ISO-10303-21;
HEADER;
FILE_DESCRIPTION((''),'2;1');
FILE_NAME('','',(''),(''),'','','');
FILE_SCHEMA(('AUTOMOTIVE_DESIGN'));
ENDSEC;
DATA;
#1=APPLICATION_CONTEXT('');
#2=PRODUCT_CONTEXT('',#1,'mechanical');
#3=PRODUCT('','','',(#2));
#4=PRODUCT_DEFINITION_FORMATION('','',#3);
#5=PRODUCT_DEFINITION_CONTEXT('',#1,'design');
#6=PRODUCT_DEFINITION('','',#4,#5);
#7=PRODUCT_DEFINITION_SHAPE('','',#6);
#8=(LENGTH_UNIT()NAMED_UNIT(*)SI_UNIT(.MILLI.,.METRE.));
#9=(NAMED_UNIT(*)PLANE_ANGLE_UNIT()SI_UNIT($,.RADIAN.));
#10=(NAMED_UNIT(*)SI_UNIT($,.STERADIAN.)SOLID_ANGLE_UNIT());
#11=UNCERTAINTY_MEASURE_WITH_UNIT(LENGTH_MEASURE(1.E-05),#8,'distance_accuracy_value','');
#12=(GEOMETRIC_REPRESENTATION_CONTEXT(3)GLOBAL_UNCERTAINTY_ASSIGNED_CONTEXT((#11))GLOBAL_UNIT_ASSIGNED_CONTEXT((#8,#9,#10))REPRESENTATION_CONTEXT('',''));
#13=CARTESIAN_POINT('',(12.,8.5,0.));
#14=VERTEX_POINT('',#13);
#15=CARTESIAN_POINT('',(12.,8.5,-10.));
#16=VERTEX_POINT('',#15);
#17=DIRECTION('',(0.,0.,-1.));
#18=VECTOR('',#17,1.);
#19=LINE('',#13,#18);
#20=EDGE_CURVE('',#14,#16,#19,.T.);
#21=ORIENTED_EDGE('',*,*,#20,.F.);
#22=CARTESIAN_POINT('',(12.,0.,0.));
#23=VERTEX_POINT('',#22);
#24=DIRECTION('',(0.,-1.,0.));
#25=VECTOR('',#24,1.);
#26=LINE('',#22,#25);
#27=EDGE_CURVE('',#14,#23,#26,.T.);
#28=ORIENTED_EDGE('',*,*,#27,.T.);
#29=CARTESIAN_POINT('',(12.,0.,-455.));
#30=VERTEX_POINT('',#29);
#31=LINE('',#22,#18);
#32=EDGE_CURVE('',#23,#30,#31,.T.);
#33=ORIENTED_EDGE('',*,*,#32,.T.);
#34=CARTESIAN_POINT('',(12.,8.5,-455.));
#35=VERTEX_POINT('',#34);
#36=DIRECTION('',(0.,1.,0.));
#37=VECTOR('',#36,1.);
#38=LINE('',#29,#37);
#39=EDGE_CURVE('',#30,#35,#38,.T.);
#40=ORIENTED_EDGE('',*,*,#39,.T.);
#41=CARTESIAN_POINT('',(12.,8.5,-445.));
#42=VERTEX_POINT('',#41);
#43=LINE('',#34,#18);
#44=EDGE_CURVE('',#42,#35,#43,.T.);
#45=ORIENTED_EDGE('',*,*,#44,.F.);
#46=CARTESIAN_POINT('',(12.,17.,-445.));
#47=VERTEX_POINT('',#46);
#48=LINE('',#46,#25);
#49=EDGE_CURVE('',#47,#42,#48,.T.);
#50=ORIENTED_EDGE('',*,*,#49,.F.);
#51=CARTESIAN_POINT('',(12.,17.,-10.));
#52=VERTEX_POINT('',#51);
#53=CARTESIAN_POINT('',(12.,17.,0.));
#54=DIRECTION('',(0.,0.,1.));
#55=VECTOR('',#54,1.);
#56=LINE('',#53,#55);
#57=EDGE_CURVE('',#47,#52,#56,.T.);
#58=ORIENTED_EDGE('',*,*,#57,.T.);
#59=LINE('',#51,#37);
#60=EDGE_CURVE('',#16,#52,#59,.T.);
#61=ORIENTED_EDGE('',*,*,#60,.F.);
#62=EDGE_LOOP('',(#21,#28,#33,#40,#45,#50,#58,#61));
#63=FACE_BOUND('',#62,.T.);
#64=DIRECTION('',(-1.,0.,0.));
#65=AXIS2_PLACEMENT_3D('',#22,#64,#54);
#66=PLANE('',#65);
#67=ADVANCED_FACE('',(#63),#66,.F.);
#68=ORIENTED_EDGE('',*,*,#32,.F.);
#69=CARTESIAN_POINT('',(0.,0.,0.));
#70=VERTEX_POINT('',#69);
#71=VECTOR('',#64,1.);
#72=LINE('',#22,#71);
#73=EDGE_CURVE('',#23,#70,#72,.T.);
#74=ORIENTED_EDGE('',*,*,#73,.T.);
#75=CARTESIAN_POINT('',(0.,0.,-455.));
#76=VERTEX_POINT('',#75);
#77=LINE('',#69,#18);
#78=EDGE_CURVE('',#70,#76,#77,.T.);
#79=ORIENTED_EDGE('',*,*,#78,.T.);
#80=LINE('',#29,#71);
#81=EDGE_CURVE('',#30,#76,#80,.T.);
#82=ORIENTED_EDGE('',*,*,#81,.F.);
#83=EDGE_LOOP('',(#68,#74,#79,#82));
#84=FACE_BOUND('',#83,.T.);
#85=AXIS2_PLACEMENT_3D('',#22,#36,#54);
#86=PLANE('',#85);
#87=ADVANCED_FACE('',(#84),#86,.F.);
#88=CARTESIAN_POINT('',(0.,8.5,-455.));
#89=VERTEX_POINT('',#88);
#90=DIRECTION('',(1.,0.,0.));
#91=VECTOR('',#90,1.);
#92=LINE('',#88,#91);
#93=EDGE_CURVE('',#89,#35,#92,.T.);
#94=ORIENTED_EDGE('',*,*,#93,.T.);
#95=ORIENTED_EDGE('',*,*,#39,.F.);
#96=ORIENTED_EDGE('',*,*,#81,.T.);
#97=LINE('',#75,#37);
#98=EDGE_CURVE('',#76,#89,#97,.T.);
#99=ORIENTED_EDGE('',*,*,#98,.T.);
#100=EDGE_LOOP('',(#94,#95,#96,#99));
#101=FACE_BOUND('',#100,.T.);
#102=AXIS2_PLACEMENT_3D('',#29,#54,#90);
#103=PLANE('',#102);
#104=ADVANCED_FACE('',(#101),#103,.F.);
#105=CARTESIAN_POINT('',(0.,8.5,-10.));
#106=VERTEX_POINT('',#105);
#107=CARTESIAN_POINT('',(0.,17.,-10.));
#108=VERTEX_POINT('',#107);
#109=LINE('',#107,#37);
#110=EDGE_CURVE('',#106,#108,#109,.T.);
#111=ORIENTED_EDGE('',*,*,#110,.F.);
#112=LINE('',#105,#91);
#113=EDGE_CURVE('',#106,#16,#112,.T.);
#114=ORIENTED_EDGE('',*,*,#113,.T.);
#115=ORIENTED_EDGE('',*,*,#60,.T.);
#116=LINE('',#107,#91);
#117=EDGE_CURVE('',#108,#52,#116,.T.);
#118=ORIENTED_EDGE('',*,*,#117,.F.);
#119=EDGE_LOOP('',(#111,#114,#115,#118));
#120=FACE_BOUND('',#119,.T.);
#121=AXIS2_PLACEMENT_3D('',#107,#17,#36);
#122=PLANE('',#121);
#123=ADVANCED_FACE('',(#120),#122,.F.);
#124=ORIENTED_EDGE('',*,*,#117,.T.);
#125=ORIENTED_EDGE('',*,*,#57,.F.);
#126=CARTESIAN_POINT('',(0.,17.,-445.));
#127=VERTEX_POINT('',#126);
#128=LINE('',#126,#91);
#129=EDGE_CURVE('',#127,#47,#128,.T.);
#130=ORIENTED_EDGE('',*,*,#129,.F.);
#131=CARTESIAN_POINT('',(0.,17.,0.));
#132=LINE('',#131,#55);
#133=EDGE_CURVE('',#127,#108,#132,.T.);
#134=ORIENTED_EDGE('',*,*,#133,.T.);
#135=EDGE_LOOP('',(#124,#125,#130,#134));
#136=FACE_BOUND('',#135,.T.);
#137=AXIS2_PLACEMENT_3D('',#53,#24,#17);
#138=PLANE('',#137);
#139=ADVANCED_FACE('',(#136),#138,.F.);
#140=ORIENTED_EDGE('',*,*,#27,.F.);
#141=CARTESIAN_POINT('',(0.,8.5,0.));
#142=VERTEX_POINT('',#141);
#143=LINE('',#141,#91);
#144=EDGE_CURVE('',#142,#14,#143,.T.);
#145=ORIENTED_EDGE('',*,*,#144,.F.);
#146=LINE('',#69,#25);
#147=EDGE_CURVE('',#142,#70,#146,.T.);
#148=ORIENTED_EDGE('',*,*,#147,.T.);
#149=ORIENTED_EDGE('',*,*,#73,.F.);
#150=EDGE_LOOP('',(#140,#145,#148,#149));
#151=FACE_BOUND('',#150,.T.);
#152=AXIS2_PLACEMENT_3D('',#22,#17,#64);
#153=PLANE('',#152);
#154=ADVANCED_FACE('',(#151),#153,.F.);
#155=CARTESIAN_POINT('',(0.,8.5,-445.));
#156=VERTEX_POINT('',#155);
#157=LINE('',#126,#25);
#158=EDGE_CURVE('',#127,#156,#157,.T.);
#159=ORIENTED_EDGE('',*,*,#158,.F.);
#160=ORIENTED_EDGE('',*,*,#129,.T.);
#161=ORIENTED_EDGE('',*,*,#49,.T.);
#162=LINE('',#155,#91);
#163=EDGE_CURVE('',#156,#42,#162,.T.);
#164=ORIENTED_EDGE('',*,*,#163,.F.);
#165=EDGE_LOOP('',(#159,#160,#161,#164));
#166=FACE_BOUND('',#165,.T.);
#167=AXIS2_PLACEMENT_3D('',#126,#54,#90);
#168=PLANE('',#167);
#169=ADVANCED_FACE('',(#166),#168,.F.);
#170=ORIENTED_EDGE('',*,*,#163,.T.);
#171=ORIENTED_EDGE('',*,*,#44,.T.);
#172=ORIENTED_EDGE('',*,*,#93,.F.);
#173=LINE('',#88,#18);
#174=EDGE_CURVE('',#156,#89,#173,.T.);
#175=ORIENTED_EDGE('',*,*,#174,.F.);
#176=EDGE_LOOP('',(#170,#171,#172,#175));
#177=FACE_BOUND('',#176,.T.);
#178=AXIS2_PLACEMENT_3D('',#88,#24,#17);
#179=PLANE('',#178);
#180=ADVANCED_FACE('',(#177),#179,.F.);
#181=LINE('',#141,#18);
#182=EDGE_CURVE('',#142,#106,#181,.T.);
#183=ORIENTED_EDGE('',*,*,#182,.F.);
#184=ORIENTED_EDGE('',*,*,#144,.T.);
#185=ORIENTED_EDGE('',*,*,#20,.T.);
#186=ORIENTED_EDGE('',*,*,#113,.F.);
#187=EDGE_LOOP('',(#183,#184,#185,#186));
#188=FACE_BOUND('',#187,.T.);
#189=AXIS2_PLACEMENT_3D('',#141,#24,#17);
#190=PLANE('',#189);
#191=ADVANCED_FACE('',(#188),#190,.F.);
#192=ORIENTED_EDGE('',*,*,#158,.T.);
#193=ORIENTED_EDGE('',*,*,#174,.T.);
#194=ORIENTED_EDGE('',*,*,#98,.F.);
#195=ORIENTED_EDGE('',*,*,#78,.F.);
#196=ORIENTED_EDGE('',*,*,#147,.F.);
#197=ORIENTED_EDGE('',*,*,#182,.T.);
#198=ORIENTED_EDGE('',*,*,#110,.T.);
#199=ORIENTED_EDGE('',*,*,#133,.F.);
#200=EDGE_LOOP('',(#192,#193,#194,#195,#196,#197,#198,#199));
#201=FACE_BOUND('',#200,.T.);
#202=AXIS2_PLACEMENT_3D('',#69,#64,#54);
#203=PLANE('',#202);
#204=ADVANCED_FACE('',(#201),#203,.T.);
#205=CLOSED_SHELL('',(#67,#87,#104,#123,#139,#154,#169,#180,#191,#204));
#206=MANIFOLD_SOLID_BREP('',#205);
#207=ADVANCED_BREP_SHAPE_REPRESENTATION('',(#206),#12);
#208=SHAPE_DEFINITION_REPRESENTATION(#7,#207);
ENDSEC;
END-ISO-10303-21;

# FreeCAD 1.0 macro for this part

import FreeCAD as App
import Part
import Sketcher
from FreeCAD import Vector
Q = App.Units.Quantity

doc = App.newDocument("Part")
body = doc.addObject("PartDesign::Body", "Body")

# Sketch on YZ plane
sketch1 = doc.addObject("Sketcher::SketchObject", "Sketch")
body.addObject(sketch1)
sketch1.AttachmentSupport = (doc.YZ_Plane, [""])
sketch1.MapMode = "FlatFace"
sketch1.addGeometry(Part.LineSegment(Vector(17, 0, 0), Vector(0, 0, 0)), False)
sketch1.addGeometry(Part.LineSegment(Vector(0, 0, 0), Vector(0, -455, 0)), False)
sketch1.addGeometry(Part.LineSegment(Vector(0, -455, 0), Vector(17, -455, 0)), False)
sketch1.addGeometry(Part.LineSegment(Vector(17, -455, 0), Vector(17, 0, 0)), False)
sketch1.addConstraint(Sketcher.Constraint("Coincident", 0, 2, 1, 1))
sketch1.addConstraint(Sketcher.Constraint("Coincident", 1, 2, 2, 1))
sketch1.addConstraint(Sketcher.Constraint("Coincident", 2, 2, 3, 1))
sketch1.addConstraint(Sketcher.Constraint("Coincident", 3, 2, 0, 1))
sketch1.addConstraint(Sketcher.Constraint("Horizontal", 0))
sketch1.addConstraint(Sketcher.Constraint("Vertical", 1))
sketch1.addConstraint(Sketcher.Constraint("Horizontal", 2))
sketch1.addConstraint(Sketcher.Constraint("Vertical", 3))
sketch1.addConstraint(Sketcher.Constraint("Coincident", 0, 2, -1, 1))
sketch1.addConstraint(Sketcher.Constraint("DistanceX", 0, 2, 0, 1, Q("17 mm")))
sketch1.addConstraint(Sketcher.Constraint("DistanceY", 1, 2, 1, 1, Q("455 mm")))
pad1 = doc.addObject("PartDesign::Pad", "Pad")
body.addObject(pad1)
pad1.Profile = sketch1
pad1.Length = 12

# Sketch on YZ plane
sketch2 = doc.addObject("Sketcher::SketchObject", "Sketch001")
body.addObject(sketch2)
sketch2.AttachmentSupport = (doc.YZ_Plane, [""])
sketch2.MapMode = "FlatFace"
sketch2.AttachmentOffset = App.Placement(Vector(0, 0, 12), App.Rotation())
sketch2.addGeometry(Part.LineSegment(Vector(17, 0, 0), Vector(8, 0, 0)), False)
sketch2.addGeometry(Part.LineSegment(Vector(8, 0, 0), Vector(8, -10, 0)), False)
sketch2.addGeometry(Part.LineSegment(Vector(8, -10, 0), Vector(17, -10, 0)), False)
sketch2.addGeometry(Part.LineSegment(Vector(17, -10, 0), Vector(17, 0, 0)), False)
sketch2.addGeometry(Part.LineSegment(Vector(17, -445, 0), Vector(8, -445, 0)), False)
sketch2.addGeometry(Part.LineSegment(Vector(8, -445, 0), Vector(8, -455, 0)), False)
sketch2.addGeometry(Part.LineSegment(Vector(8, -455, 0), Vector(17, -455, 0)), False)
sketch2.addGeometry(Part.LineSegment(Vector(17, -455, 0), Vector(17, -445, 0)), False)
sketch2.addConstraint(Sketcher.Constraint("Coincident", 0, 2, 1, 1))
sketch2.addConstraint(Sketcher.Constraint("Coincident", 1, 2, 2, 1))
sketch2.addConstraint(Sketcher.Constraint("Coincident", 2, 2, 3, 1))
sketch2.addConstraint(Sketcher.Constraint("Coincident", 3, 2, 0, 1))
sketch2.addConstraint(Sketcher.Constraint("Coincident", 4, 2, 5, 1))
sketch2.addConstraint(Sketcher.Constraint("Coincident", 5, 2, 6, 1))
sketch2.addConstraint(Sketcher.Constraint("Coincident", 6, 2, 7, 1))
sketch2.addConstraint(Sketcher.Constraint("Coincident", 7, 2, 4, 1))
sketch2.addConstraint(Sketcher.Constraint("Horizontal", 0))
sketch2.addConstraint(Sketcher.Constraint("Vertical", 1))
sketch2.addConstraint(Sketcher.Constraint("Horizontal", 2))
sketch2.addConstraint(Sketcher.Constraint("Vertical", 3))
sketch2.addConstraint(Sketcher.Constraint("Horizontal", 4))
sketch2.addConstraint(Sketcher.Constraint("Vertical", 5))
sketch2.addConstraint(Sketcher.Constraint("Horizontal", 6))
sketch2.addConstraint(Sketcher.Constraint("Vertical", 7))
sketch2.addConstraint(Sketcher.Constraint("PointOnObject", 0, 2, -1))
sketch2.addConstraint(Sketcher.Constraint("Vertical", 1, 2, 4, 2))
sketch2.addConstraint(Sketcher.Constraint("Vertical", 3, 2, 6, 2))
sketch2.addConstraint(Sketcher.Constraint("Equal", 3, 5))
sketch2.addConstraint(Sketcher.Constraint("DistanceY", 1, 2, 1, 1, Q("10 mm")))
sketch2.addConstraint(Sketcher.Constraint("DistanceX", 0, 2, 0, 1, Q("8.5 mm")))
sketch2.addConstraint(Sketcher.Constraint("DistanceX", -1, 1, 2, 2, Q("17 mm")))
sketch2.addConstraint(Sketcher.Constraint("DistanceY", 4, 2, -1, 1, Q("445 mm")))
pocket1 = doc.addObject("PartDesign::Pocket", "Pocket")
body.addObject(pocket1)
pocket1.Profile = sketch2
pocket1.Length = 12

doc.recompute()
